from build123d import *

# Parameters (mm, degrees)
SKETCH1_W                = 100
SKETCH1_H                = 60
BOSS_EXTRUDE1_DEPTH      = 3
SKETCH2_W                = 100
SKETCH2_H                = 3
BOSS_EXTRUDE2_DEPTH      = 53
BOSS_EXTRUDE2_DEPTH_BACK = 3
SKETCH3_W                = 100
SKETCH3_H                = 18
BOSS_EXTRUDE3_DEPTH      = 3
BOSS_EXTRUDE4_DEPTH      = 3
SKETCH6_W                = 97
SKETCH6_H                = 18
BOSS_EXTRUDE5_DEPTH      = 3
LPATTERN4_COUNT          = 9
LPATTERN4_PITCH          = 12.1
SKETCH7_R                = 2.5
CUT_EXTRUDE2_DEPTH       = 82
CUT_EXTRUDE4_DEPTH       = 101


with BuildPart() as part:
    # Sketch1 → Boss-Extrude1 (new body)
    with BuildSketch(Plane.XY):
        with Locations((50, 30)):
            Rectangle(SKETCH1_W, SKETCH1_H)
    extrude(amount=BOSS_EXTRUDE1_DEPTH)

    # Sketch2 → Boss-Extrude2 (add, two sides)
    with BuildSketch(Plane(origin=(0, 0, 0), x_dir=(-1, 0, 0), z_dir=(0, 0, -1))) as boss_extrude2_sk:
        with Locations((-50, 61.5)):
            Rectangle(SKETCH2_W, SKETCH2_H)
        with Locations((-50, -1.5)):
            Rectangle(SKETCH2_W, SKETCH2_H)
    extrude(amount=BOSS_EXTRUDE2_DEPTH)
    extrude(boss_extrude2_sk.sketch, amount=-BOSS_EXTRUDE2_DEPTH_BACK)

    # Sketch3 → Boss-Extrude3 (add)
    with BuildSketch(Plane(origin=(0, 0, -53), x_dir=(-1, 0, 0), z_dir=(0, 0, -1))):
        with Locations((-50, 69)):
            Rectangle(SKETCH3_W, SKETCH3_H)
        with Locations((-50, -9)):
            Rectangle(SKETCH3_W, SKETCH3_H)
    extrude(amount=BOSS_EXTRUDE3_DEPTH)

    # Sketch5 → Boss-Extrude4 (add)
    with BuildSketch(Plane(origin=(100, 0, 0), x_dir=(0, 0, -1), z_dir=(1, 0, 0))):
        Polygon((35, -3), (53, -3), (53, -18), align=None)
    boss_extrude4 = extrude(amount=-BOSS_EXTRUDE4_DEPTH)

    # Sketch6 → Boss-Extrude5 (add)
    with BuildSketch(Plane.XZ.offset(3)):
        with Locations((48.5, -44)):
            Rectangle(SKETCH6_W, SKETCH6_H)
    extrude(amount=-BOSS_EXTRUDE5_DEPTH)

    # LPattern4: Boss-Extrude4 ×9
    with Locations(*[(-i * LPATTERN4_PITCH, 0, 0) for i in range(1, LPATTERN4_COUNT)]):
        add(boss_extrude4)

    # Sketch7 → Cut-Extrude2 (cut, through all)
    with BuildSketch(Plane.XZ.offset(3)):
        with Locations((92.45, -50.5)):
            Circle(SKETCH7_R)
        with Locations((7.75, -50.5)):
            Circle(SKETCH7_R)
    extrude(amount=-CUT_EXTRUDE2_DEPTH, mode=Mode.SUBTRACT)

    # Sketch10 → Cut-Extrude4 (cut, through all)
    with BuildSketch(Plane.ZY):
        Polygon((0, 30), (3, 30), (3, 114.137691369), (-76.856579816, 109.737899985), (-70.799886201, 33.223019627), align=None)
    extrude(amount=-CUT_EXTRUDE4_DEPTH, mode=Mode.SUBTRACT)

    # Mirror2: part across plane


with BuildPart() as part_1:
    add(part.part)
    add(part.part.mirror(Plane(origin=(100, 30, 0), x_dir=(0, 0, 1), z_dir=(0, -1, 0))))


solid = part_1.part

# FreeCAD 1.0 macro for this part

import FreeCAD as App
import Part
import Sketcher

V = App.Vector
Q = App.Units.Quantity


def add_polygon(sketch, points):
    """Adds a closed chain of lines whose ends are joined by coincident constraints."""
    first, n = sketch.GeometryCount, len(points)
    for a, b in zip(points, points[1:] + points[:1]):
        sketch.addGeometry(Part.LineSegment(App.Vector(*a, 0), App.Vector(*b, 0)), False)
    for i in range(n):
        sketch.addConstraint(Sketcher.Constraint("Coincident", first + i, 2, first + (i + 1) % n, 1))

doc = App.newDocument("Part")
body = doc.addObject("PartDesign::Body", "Body")

# Sketch on XY plane
sketch1 = doc.addObject("Sketcher::SketchObject", "Sketch")
body.addObject(sketch1)
sketch1.AttachmentSupport = (doc.XY_Plane, [""])
sketch1.MapMode = "FlatFace"
add_polygon(sketch1, [(0, 60), (0, 0), (100, 0), (100, 60)])  # lines 0-3
sketch1.addConstraint([
    Sketcher.Constraint("Vertical", 0),
    Sketcher.Constraint("Horizontal", 1),
    Sketcher.Constraint("Vertical", 2),
    Sketcher.Constraint("Horizontal", 3),
    Sketcher.Constraint("Coincident", 0, 2, -1, 1),
    Sketcher.Constraint("DistanceX", 1, 1, 1, 2, Q("100 mm")),
    Sketcher.Constraint("DistanceY", 0, 2, 0, 1, Q("60 mm")),
])
pad1 = doc.addObject("PartDesign::Pad", "Pad")
body.addObject(pad1)
pad1.Profile = sketch1
pad1.Length = 3

# Sketch on XY plane
sketch2 = doc.addObject("Sketcher::SketchObject", "Sketch001")
body.addObject(sketch2)
sketch2.AttachmentSupport = (doc.XY_Plane, [""])
sketch2.MapMode = "FlatFace"
add_polygon(sketch2, [(100, 63), (100, 60), (0, 60), (0, 63)])  # lines 0-3
add_polygon(sketch2, [(100, 0), (100, -3), (0, -3), (0, 0)])  # lines 4-7
sketch2.addConstraint([
    Sketcher.Constraint("Vertical", 0),
    Sketcher.Constraint("Horizontal", 1),
    Sketcher.Constraint("Vertical", 2),
    Sketcher.Constraint("Horizontal", 3),
    Sketcher.Constraint("Vertical", 4),
    Sketcher.Constraint("Horizontal", 5),
    Sketcher.Constraint("Vertical", 6),
    Sketcher.Constraint("Horizontal", 7),
    Sketcher.Constraint("Coincident", 6, 2, -1, 1),
    Sketcher.Constraint("PointOnObject", 1, 2, -2),
    Sketcher.Constraint("Vertical", 3, 2, 4, 2),
    Sketcher.Constraint("Equal", 2, 4),
    Sketcher.Constraint("DistanceX", 1, 2, 1, 1, Q("100 mm")),
    Sketcher.Constraint("DistanceY", 0, 2, 0, 1, Q("3 mm")),
    Sketcher.Constraint("DistanceY", -1, 1, 0, 2, Q("60 mm")),
])
pad2 = doc.addObject("PartDesign::Pad", "Pad001")
body.addObject(pad2)
pad2.Profile = sketch2
pad2.Type = "TwoLengths"
pad2.Length = 53
pad2.Length2 = 3
pad2.Reversed = True

# Sketch on XY plane
sketch3 = doc.addObject("Sketcher::SketchObject", "Sketch002")
body.addObject(sketch3)
sketch3.AttachmentSupport = (doc.XY_Plane, [""])
sketch3.MapMode = "FlatFace"
sketch3.AttachmentOffset = App.Placement(V(0, 0, -53), App.Rotation())
add_polygon(sketch3, [(100, 78), (100, 60), (0, 60), (0, 78)])  # lines 0-3
add_polygon(sketch3, [(100, 0), (100, -18), (0, -18), (0, 0)])  # lines 4-7
sketch3.addConstraint([
    Sketcher.Constraint("Vertical", 0),
    Sketcher.Constraint("Horizontal", 1),
    Sketcher.Constraint("Vertical", 2),
    Sketcher.Constraint("Horizontal", 3),
    Sketcher.Constraint("Vertical", 4),
    Sketcher.Constraint("Horizontal", 5),
    Sketcher.Constraint("Vertical", 6),
    Sketcher.Constraint("Horizontal", 7),
    Sketcher.Constraint("Coincident", 6, 2, -1, 1),
    Sketcher.Constraint("PointOnObject", 1, 2, -2),
    Sketcher.Constraint("Vertical", 3, 2, 4, 2),
    Sketcher.Constraint("Equal", 2, 4),
    Sketcher.Constraint("DistanceX", 1, 2, 1, 1, Q("100 mm")),
    Sketcher.Constraint("DistanceY", 0, 2, 0, 1, Q("18 mm")),
    Sketcher.Constraint("DistanceY", -1, 1, 0, 2, Q("60 mm")),
])
pad3 = doc.addObject("PartDesign::Pad", "Pad002")
body.addObject(pad3)
pad3.Profile = sketch3
pad3.Length = 3
pad3.Reversed = True

# Sketch on YZ plane
sketch4 = doc.addObject("Sketcher::SketchObject", "Sketch003")
body.addObject(sketch4)
sketch4.AttachmentSupport = (doc.YZ_Plane, [""])
sketch4.MapMode = "FlatFace"
sketch4.AttachmentOffset = App.Placement(V(0, 0, 100), App.Rotation())
add_polygon(sketch4, [(-3, -53), (-3, -35), (-18, -53)])  # lines 0-2
sketch4.addConstraint([
    Sketcher.Constraint("Vertical", 0),
    Sketcher.Constraint("Horizontal", 2),
    Sketcher.Constraint("DistanceX", 2, 1, 2, 2, Q("15 mm")),
    Sketcher.Constraint("DistanceY", 0, 1, 0, 2, Q("18 mm")),
    Sketcher.Constraint("DistanceX", 0, 2, -1, 1, Q("3 mm")),
    Sketcher.Constraint("DistanceY", 0, 2, -1, 1, Q("35 mm")),
])
pad4 = doc.addObject("PartDesign::Pad", "Pad003")
body.addObject(pad4)
pad4.Profile = sketch4
pad4.Length = 3
pad4.Reversed = True

# Sketch on XZ plane
sketch5 = doc.addObject("Sketcher::SketchObject", "Sketch004")
body.addObject(sketch5)
sketch5.AttachmentSupport = (doc.XZ_Plane, [""])
sketch5.MapMode = "FlatFace"
sketch5.AttachmentOffset = App.Placement(V(0, 0, 3), App.Rotation())
add_polygon(sketch5, [(0, -35), (0, -53), (97, -53), (97, -35)])  # lines 0-3
sketch5.addConstraint([
    Sketcher.Constraint("Vertical", 0),
    Sketcher.Constraint("Horizontal", 1),
    Sketcher.Constraint("Vertical", 2),
    Sketcher.Constraint("Horizontal", 3),
    Sketcher.Constraint("PointOnObject", 0, 2, -2),
    Sketcher.Constraint("DistanceX", 1, 1, 1, 2, Q("97 mm")),
    Sketcher.Constraint("DistanceY", 0, 2, 0, 1, Q("18 mm")),
    Sketcher.Constraint("DistanceY", 0, 2, -1, 1, Q("53 mm")),
])
pad5 = doc.addObject("PartDesign::Pad", "Pad004")
body.addObject(pad5)
pad5.Profile = sketch5
pad5.Length = 3
pad5.Reversed = True
doc.recompute()

linearpattern = doc.addObject("PartDesign::LinearPattern", "LinearPattern")
body.addObject(linearpattern)
linearpattern.Originals = [pad4]
linearpattern.Direction = (doc.X_Axis, [""])
linearpattern.Mode = "offset"
linearpattern.Offset = 12.1
linearpattern.Occurrences = 9
linearpattern.Reversed = True
body.Tip = linearpattern

# Sketch on XZ plane
sketch6 = doc.addObject("Sketcher::SketchObject", "Sketch005")
body.addObject(sketch6)
sketch6.AttachmentSupport = (doc.XZ_Plane, [""])
sketch6.MapMode = "FlatFace"
sketch6.AttachmentOffset = App.Placement(V(0, 0, 3), App.Rotation())
sketch6.addGeometry([
    Part.Circle(V(92.5, -50.5, 0), V(0, 0, 1), 2.5),
    Part.Circle(V(7.8, -50.5, 0), V(0, 0, 1), 2.5),
], False)
sketch6.addConstraint([
    Sketcher.Constraint("Equal", 0, 1),
    Sketcher.Constraint("Horizontal", 0, 3, 1, 3),
    Sketcher.Constraint("Diameter", 0, Q("5 mm")),
    Sketcher.Constraint("DistanceY", 0, 3, -1, 1, Q("50.5 mm")),
    Sketcher.Constraint("DistanceX", 1, 3, 0, 3, Q("84.7 mm")),
    Sketcher.Constraint("DistanceX", -1, 1, 0, 3, Q("92.45 mm")),
])
pocket1 = doc.addObject("PartDesign::Pocket", "Pocket")
body.addObject(pocket1)
pocket1.Profile = sketch6
pocket1.Type = "ThroughAll"

# Sketch on YZ plane
sketch7 = doc.addObject("Sketcher::SketchObject", "Sketch006")
body.addObject(sketch7)
sketch7.AttachmentSupport = (doc.YZ_Plane, [""])
sketch7.MapMode = "FlatFace"
add_polygon(sketch7, [(30, 0), (30, 3), (114.1, 3), (109.7, -76.9), (33.2, -70.8)])  # lines 0-4
sketch7.addConstraint([
    Sketcher.Constraint("Vertical", 0),
    Sketcher.Constraint("Horizontal", 1),
    Sketcher.Constraint("PointOnObject", 4, 2, -1),
    Sketcher.Constraint("DistanceY", 0, 1, 0, 2, Q("3 mm")),
    Sketcher.Constraint("DistanceX", -1, 1, 0, 2, Q("30 mm")),
    Sketcher.Constraint("DistanceX", 1, 1, 1, 2, Q("84.137691 mm")),
    Sketcher.Constraint("DistanceX", -1, 1, 2, 2, Q("109.7379 mm")),
    Sketcher.Constraint("Distance", 3, Q("76.754221 mm")),
    Sketcher.Constraint("Distance", 4, Q("70.873209 mm")),
    Sketcher.Constraint("DistanceY", 2, 2, -1, 1, Q("76.85658 mm")),
])
pocket2 = doc.addObject("PartDesign::Pocket", "Pocket001")
body.addObject(pocket2)
pocket2.Profile = sketch7
pocket2.Type = "ThroughAll"
pocket2.Reversed = True
body2 = doc.addObject("PartDesign::Body", "Body001")
doc.recompute()

body2.BaseFeature = body
doc.recompute()

mirroring = doc.addObject("Part::Mirroring", "Mirroring")
mirroring.Source = body
mirroring.Base = V(100, 30, 0)
mirroring.Normal = V(0, -1, 0)
body3 = doc.addObject("PartDesign::Body", "Body002")
body3.BaseFeature = mirroring
boolean = doc.addObject("PartDesign::Boolean", "Boolean")
body2.addObject(boolean)
boolean.Type = "Fuse"
boolean.addObjects([body3])
doc.recompute()
mirroring.Visibility = False

doc.recompute()
